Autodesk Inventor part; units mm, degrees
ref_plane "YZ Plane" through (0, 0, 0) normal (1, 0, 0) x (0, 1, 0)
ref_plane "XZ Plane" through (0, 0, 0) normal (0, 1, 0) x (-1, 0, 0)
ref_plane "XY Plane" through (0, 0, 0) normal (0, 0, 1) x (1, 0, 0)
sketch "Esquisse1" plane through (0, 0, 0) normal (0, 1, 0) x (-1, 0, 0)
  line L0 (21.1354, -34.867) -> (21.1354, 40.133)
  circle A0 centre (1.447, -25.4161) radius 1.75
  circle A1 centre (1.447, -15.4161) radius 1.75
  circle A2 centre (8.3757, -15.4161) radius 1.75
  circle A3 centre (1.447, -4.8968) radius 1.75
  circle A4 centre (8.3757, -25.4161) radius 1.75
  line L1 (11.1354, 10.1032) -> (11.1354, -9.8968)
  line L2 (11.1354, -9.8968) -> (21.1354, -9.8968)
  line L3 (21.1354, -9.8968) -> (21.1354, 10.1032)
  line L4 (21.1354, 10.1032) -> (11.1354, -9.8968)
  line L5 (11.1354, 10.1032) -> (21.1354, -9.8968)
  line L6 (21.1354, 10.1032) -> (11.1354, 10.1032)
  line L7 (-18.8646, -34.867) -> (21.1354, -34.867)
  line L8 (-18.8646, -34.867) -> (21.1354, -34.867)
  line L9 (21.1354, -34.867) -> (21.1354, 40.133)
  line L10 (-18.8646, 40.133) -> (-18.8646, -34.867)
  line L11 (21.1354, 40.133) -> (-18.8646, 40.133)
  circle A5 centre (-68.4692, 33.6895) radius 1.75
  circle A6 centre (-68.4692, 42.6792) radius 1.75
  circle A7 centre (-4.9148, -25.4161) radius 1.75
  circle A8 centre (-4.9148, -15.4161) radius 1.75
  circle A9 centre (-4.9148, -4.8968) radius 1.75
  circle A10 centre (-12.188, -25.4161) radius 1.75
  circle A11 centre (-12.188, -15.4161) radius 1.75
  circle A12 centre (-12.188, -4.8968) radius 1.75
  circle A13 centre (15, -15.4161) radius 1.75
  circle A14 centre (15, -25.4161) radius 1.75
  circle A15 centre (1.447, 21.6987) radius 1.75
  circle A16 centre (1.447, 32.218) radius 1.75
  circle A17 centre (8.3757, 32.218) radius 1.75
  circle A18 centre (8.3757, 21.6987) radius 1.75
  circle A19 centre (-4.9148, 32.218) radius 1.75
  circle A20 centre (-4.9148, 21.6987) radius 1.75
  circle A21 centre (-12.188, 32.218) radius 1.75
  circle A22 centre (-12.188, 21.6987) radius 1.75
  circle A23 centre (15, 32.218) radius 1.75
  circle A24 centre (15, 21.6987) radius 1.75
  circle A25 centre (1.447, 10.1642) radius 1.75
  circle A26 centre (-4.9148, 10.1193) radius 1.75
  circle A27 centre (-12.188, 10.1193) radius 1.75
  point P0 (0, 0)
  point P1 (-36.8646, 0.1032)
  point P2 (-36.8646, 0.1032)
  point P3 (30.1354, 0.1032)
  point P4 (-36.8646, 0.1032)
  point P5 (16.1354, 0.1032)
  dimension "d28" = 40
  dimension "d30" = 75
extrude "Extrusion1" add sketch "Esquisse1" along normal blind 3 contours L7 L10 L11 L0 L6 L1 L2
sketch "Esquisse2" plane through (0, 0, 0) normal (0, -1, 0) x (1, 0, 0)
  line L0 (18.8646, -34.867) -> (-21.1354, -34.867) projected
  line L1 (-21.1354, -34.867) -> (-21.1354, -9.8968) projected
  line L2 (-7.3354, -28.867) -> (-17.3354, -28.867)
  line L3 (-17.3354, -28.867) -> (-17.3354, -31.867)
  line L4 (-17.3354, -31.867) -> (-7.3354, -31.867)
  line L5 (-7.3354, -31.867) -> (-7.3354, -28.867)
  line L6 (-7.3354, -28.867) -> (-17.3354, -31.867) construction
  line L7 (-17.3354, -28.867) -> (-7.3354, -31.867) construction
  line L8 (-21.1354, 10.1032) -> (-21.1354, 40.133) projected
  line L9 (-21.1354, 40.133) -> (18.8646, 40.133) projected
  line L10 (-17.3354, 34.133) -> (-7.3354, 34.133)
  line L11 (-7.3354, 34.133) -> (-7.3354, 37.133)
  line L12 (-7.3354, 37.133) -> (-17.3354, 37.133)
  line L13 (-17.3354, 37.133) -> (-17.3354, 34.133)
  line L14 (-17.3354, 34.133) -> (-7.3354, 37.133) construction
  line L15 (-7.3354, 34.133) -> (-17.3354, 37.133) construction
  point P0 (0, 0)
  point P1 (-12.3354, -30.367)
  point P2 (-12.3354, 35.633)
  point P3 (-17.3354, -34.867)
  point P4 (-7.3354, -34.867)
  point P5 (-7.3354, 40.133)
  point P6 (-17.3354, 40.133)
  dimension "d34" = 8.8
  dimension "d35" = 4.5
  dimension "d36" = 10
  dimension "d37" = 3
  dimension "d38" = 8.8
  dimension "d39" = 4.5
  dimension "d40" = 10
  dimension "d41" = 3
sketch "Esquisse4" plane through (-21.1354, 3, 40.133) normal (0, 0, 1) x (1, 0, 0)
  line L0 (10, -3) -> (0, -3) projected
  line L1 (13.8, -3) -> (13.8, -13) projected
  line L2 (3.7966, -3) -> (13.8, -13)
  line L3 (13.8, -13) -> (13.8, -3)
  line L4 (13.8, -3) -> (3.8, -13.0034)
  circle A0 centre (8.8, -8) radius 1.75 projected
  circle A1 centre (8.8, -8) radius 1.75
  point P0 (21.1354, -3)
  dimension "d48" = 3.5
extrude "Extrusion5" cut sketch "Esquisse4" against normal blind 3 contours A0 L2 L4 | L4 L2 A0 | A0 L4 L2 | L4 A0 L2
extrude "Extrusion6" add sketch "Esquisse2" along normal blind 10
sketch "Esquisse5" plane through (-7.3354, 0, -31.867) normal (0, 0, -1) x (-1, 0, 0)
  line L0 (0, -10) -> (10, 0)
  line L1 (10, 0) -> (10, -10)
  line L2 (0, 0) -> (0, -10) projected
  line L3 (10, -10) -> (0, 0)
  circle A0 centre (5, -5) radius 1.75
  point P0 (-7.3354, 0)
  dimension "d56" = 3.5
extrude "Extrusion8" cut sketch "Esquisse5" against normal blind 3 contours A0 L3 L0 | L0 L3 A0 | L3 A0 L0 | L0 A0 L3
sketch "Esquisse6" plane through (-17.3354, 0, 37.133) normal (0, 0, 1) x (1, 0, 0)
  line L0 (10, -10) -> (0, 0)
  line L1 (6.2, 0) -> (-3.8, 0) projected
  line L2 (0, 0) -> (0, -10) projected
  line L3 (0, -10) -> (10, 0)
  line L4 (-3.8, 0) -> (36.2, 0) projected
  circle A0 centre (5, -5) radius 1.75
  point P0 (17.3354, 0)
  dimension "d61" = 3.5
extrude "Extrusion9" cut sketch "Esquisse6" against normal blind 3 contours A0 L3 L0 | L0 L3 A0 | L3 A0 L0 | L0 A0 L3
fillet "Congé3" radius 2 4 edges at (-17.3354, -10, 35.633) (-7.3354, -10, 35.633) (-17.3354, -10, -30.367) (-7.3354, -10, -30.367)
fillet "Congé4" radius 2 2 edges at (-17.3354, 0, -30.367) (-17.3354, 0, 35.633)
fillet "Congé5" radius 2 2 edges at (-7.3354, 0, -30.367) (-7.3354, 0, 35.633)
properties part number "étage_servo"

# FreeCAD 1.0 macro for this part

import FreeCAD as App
import Part
import Sketcher
from FreeCAD import Vector


def edges_at(feature, points):
    """Names of the edges that pass closest to the given points."""
    edges = feature.Shape.Edges
    near = lambda p: min(range(len(edges)), key=lambda i: edges[i].distToShape(Part.Vertex(*p))[0])
    return sorted({f"Edge{near(p) + 1}" for p in points})


def add_polygon(sketch, points):
    """Adds a closed chain of lines whose ends are joined by coincident constraints."""
    first, n = sketch.GeometryCount, len(points)
    for a, b in zip(points, points[1:] + points[:1]):
        sketch.addGeometry(Part.LineSegment(App.Vector(*a, 0), App.Vector(*b, 0)), False)
    for i in range(n):
        sketch.addConstraint(Sketcher.Constraint("Coincident", first + i, 2, first + (i + 1) % n, 1))

doc = App.newDocument("Part")
body = doc.addObject("PartDesign::Body", "Body")

# Sketch on XZ plane
sketch1 = body.newObject("Sketcher::SketchObject", "Sketch")
sketch1.AttachmentSupport = (doc.getObject("XZ_Plane"), [""])
sketch1.MapMode = "FlatFace"
add_polygon(sketch1, [(18.9, -34.9), (-21.1, -34.9), (-21.1, -9.9), (-11.1, -9.9), (-11.1, 10.1), (-21.1, 10.1), (-21.1, 40.1), (18.9, 40.1)])  # lines 0-7
sketch1.addGeometry(Part.Circle(Vector(12.2, -25.4, 0), Vector(0, 0, 1), 1.8), False)  # 8
sketch1.addGeometry(Part.Circle(Vector(4.9, -25.4, 0), Vector(0, 0, 1), 1.8), False)  # 9
sketch1.addGeometry(Part.Circle(Vector(12.2, -15.4, 0), Vector(0, 0, 1), 1.8), False)  # 10
sketch1.addGeometry(Part.Circle(Vector(4.9, -15.4, 0), Vector(0, 0, 1), 1.8), False)  # 11
sketch1.addGeometry(Part.Circle(Vector(-1.4, -25.4, 0), Vector(0, 0, 1), 1.8), False)  # 12
sketch1.addGeometry(Part.Circle(Vector(-8.4, -25.4, 0), Vector(0, 0, 1), 1.8), False)  # 13
sketch1.addGeometry(Part.Circle(Vector(-15, -25.4, 0), Vector(0, 0, 1), 1.8), False)  # 14
sketch1.addGeometry(Part.Circle(Vector(-1.4, -15.4, 0), Vector(0, 0, 1), 1.8), False)  # 15
sketch1.addGeometry(Part.Circle(Vector(-8.4, -15.4, 0), Vector(0, 0, 1), 1.8), False)  # 16
sketch1.addGeometry(Part.Circle(Vector(-15, -15.4, 0), Vector(0, 0, 1), 1.8), False)  # 17
sketch1.addGeometry(Part.Circle(Vector(12.2, -4.9, 0), Vector(0, 0, 1), 1.8), False)  # 18
sketch1.addGeometry(Part.Circle(Vector(4.9, -4.9, 0), Vector(0, 0, 1), 1.8), False)  # 19
sketch1.addGeometry(Part.Circle(Vector(-1.4, -4.9, 0), Vector(0, 0, 1), 1.8), False)  # 20
sketch1.addGeometry(Part.Circle(Vector(12.2, 10.1, 0), Vector(0, 0, 1), 1.8), False)  # 21
sketch1.addGeometry(Part.Circle(Vector(4.9, 10.1, 0), Vector(0, 0, 1), 1.8), False)  # 22
sketch1.addGeometry(Part.Circle(Vector(12.2, 21.7, 0), Vector(0, 0, 1), 1.8), False)  # 23
sketch1.addGeometry(Part.Circle(Vector(4.9, 21.7, 0), Vector(0, 0, 1), 1.8), False)  # 24
sketch1.addGeometry(Part.Circle(Vector(-1.4, 10.2, 0), Vector(0, 0, 1), 1.8), False)  # 25
sketch1.addGeometry(Part.Circle(Vector(-1.4, 21.7, 0), Vector(0, 0, 1), 1.8), False)  # 26
sketch1.addGeometry(Part.Circle(Vector(-8.4, 21.7, 0), Vector(0, 0, 1), 1.8), False)  # 27
sketch1.addGeometry(Part.Circle(Vector(-15, 21.7, 0), Vector(0, 0, 1), 1.8), False)  # 28
sketch1.addGeometry(Part.Circle(Vector(12.2, 32.2, 0), Vector(0, 0, 1), 1.8), False)  # 29
sketch1.addGeometry(Part.Circle(Vector(4.9, 32.2, 0), Vector(0, 0, 1), 1.8), False)  # 30
sketch1.addGeometry(Part.Circle(Vector(-1.4, 32.2, 0), Vector(0, 0, 1), 1.8), False)  # 31
sketch1.addGeometry(Part.Circle(Vector(-8.4, 32.2, 0), Vector(0, 0, 1), 1.8), False)  # 32
sketch1.addGeometry(Part.Circle(Vector(-15, 32.2, 0), Vector(0, 0, 1), 1.8), False)  # 33
sketch1.addConstraint([
    Sketcher.Constraint("Horizontal", 0),
    Sketcher.Constraint("Vertical", 1),
    Sketcher.Constraint("Horizontal", 2),
    Sketcher.Constraint("Vertical", 3),
    Sketcher.Constraint("Horizontal", 4),
    Sketcher.Constraint("Vertical", 5),
    Sketcher.Constraint("Horizontal", 6),
    Sketcher.Constraint("Vertical", 7),
    Sketcher.Constraint("Equal", 8, 9),
    Sketcher.Constraint("Equal", 9, 10),
    Sketcher.Constraint("Equal", 10, 11),
    Sketcher.Constraint("Equal", 11, 12),
    Sketcher.Constraint("Equal", 12, 13),
    Sketcher.Constraint("Equal", 13, 14),
    Sketcher.Constraint("Equal", 14, 15),
    Sketcher.Constraint("Equal", 15, 16),
    Sketcher.Constraint("Equal", 16, 17),
    Sketcher.Constraint("Equal", 17, 18),
    Sketcher.Constraint("Equal", 18, 19),
    Sketcher.Constraint("Equal", 19, 20),
    Sketcher.Constraint("Equal", 20, 21),
    Sketcher.Constraint("Equal", 21, 22),
    Sketcher.Constraint("Equal", 22, 23),
    Sketcher.Constraint("Equal", 23, 24),
    Sketcher.Constraint("Equal", 24, 25),
    Sketcher.Constraint("Equal", 25, 26),
    Sketcher.Constraint("Equal", 26, 27),
    Sketcher.Constraint("Equal", 27, 28),
    Sketcher.Constraint("Equal", 28, 29),
    Sketcher.Constraint("Equal", 29, 30),
    Sketcher.Constraint("Equal", 30, 31),
    Sketcher.Constraint("Equal", 31, 32),
    Sketcher.Constraint("Equal", 32, 33),
    Sketcher.Constraint("Horizontal", 8, 3, 9, 3),
    Sketcher.Constraint("Horizontal", 10, 3, 11, 3),
    Sketcher.Constraint("Horizontal", 9, 3, 12, 3),
    Sketcher.Constraint("Horizontal", 12, 3, 13, 3),
    Sketcher.Constraint("Horizontal", 13, 3, 14, 3),
    Sketcher.Constraint("Horizontal", 11, 3, 15, 3),
    Sketcher.Constraint("Horizontal", 15, 3, 16, 3),
    Sketcher.Constraint("Horizontal", 16, 3, 17, 3),
    Sketcher.Constraint("Horizontal", 18, 3, 19, 3),
    Sketcher.Constraint("Horizontal", 19, 3, 20, 3),
    Sketcher.Constraint("Horizontal", 21, 3, 22, 3),
    Sketcher.Constraint("Horizontal", 23, 3, 24, 3),
    Sketcher.Constraint("Horizontal", 24, 3, 26, 3),
    Sketcher.Constraint("Horizontal", 26, 3, 27, 3),
    Sketcher.Constraint("Horizontal", 27, 3, 28, 3),
    Sketcher.Constraint("Horizontal", 29, 3, 30, 3),
    Sketcher.Constraint("Horizontal", 30, 3, 31, 3),
    Sketcher.Constraint("Horizontal", 31, 3, 32, 3),
    Sketcher.Constraint("Horizontal", 32, 3, 33, 3),
    Sketcher.Constraint("Vertical", 8, 3, 10, 3),
    Sketcher.Constraint("Vertical", 9, 3, 11, 3),
    Sketcher.Constraint("Vertical", 12, 3, 15, 3),
    Sketcher.Constraint("Vertical", 13, 3, 16, 3),
    Sketcher.Constraint("Vertical", 14, 3, 17, 3),
    Sketcher.Constraint("Vertical", 10, 3, 18, 3),
    Sketcher.Constraint("Vertical", 11, 3, 19, 3),
    Sketcher.Constraint("Vertical", 15, 3, 20, 3),
    Sketcher.Constraint("Vertical", 18, 3, 21, 3),
    Sketcher.Constraint("Vertical", 19, 3, 22, 3),
    Sketcher.Constraint("Vertical", 21, 3, 23, 3),
    Sketcher.Constraint("Vertical", 22, 3, 24, 3),
    Sketcher.Constraint("Vertical", 20, 3, 25, 3),
    Sketcher.Constraint("Vertical", 25, 3, 26, 3),
    Sketcher.Constraint("Vertical", 16, 3, 27, 3),
    Sketcher.Constraint("Vertical", 17, 3, 28, 3),
    Sketcher.Constraint("Vertical", 23, 3, 29, 3),
    Sketcher.Constraint("Vertical", 24, 3, 30, 3),
    Sketcher.Constraint("Vertical", 26, 3, 31, 3),
    Sketcher.Constraint("Vertical", 27, 3, 32, 3),
    Sketcher.Constraint("Vertical", 28, 3, 33, 3),
    Sketcher.Constraint("Vertical", 1, 2, 4, 2),
    Sketcher.Constraint("DistanceX", 0, 2, 0, 1, 40.0),
    Sketcher.Constraint("DistanceY", 7, 2, 7, 1, 75.0),
    Sketcher.Constraint("Diameter", 8, 3.5),
    Sketcher.Constraint("DistanceX", 2, 1, 2, 2, 10.0),
    Sketcher.Constraint("DistanceY", 3, 1, 3, 2, 20.0),
    Sketcher.Constraint("DistanceX", 14, 3, -1, 1, 15.0),
    Sketcher.Constraint("DistanceY", 8, 3, 10, 3, 10.0),
    Sketcher.Constraint("DistanceY", 1, 2, 20, 3, 5.0),
    Sketcher.Constraint("DistanceY", 1, 1, 1, 2, 24.9702),
    Sketcher.Constraint("DistanceX", -1, 1, 8, 3, 12.188),
    Sketcher.Constraint("DistanceY", 8, 3, -1, 1, 25.416),
    Sketcher.Constraint("DistanceX", 12, 3, -1, 1, 1.447),
    Sketcher.Constraint("DistanceY", -1, 1, 29, 3, 32.218),
    Sketcher.Constraint("DistanceY", 0, 2, -1, 1, 34.867),
    Sketcher.Constraint("DistanceY", 18, 3, 21, 3, 15.016),
    Sketcher.Constraint("DistanceY", 22, 3, 25, 3, 0.045),
    Sketcher.Constraint("DistanceX", -1, 1, 9, 3, 4.9148),
    Sketcher.Constraint("DistanceX", 13, 3, -1, 1, 8.3757),
    Sketcher.Constraint("DistanceY", -1, 1, 23, 3, 21.6987),
    Sketcher.Constraint("DistanceX", 0, 2, -1, 1, 21.1354),
])
pad1 = body.newObject("PartDesign::Pad", "Pad")
pad1.Profile = sketch1
pad1.Length = 3
pad1.Reversed = True

# Sketch on XY plane
sketch2 = body.newObject("Sketcher::SketchObject", "Sketch001")
sketch2.AttachmentSupport = (doc.getObject("XY_Plane"), [""])
sketch2.MapMode = "FlatFace"
sketch2.AttachmentOffset = App.Placement(Vector(0, 0, 40.133), App.Rotation())
sketch2.addGeometry(Part.Circle(Vector(-12.3, -5, 0), Vector(0, 0, 1), 1.8), False)
sketch2.addConstraint([
    Sketcher.Constraint("Diameter", 0, 3.5),
    Sketcher.Constraint("DistanceY", 0, 3, -1, 1, 5.0),
    Sketcher.Constraint("DistanceX", 0, 3, -1, 1, 12.3354),
])
pocket1 = body.newObject("PartDesign::Pocket", "Pocket")
pocket1.Profile = sketch2
pocket1.Length = 3

# Sketch on XZ plane
sketch3 = body.newObject("Sketcher::SketchObject", "Sketch002")
sketch3.AttachmentSupport = (doc.getObject("XZ_Plane"), [""])
sketch3.MapMode = "FlatFace"
add_polygon(sketch3, [(-7.3, -31.9), (-7.3, -28.9), (-17.3, -28.9), (-17.3, -31.9)])  # lines 0-3
add_polygon(sketch3, [(-17.3, 37.1), (-17.3, 34.1), (-7.3, 34.1), (-7.3, 37.1)])  # lines 4-7
sketch3.addConstraint([
    Sketcher.Constraint("Vertical", 0),
    Sketcher.Constraint("Horizontal", 1),
    Sketcher.Constraint("Vertical", 2),
    Sketcher.Constraint("Horizontal", 3),
    Sketcher.Constraint("Vertical", 4),
    Sketcher.Constraint("Horizontal", 5),
    Sketcher.Constraint("Vertical", 6),
    Sketcher.Constraint("Horizontal", 7),
    Sketcher.Constraint("Vertical", 2, 2, 4, 2),
    Sketcher.Constraint("Vertical", 3, 2, 5, 2),
    Sketcher.Constraint("Equal", 2, 4),
    Sketcher.Constraint("DistanceX", 1, 2, 1, 1, 10.0),
    Sketcher.Constraint("DistanceY", 0, 1, 0, 2, 3.0),
    Sketcher.Constraint("DistanceY", 1, 2, 4, 2, 63.0),
    Sketcher.Constraint("DistanceY", 0, 2, -1, 1, 28.867),
    Sketcher.Constraint("DistanceX", 0, 2, -1, 1, 7.3354),
])
pad2 = body.newObject("PartDesign::Pad", "Pad001")
pad2.Profile = sketch3
pad2.Length = 10

# Sketch on XY plane
sketch4 = body.newObject("Sketcher::SketchObject", "Sketch003")
sketch4.AttachmentSupport = (doc.getObject("XY_Plane"), [""])
sketch4.MapMode = "FlatFace"
sketch4.AttachmentOffset = App.Placement(Vector(0, 0, -31.867), App.Rotation())
sketch4.addGeometry(Part.Circle(Vector(-12.3, -5, 0), Vector(0, 0, 1), 1.8), False)
sketch4.addConstraint([
    Sketcher.Constraint("Diameter", 0, 3.5),
    Sketcher.Constraint("DistanceY", 0, 3, -1, 1, 5.0),
    Sketcher.Constraint("DistanceX", 0, 3, -1, 1, 12.3354),
])
pocket2 = body.newObject("PartDesign::Pocket", "Pocket001")
pocket2.Profile = sketch4
pocket2.Length = 3
pocket2.Reversed = True

# Sketch on XY plane
sketch5 = body.newObject("Sketcher::SketchObject", "Sketch004")
sketch5.AttachmentSupport = (doc.getObject("XY_Plane"), [""])
sketch5.MapMode = "FlatFace"
sketch5.AttachmentOffset = App.Placement(Vector(0, 0, 37.133), App.Rotation())
sketch5.addGeometry(Part.Circle(Vector(-12.3, -5, 0), Vector(0, 0, 1), 1.8), False)
sketch5.addConstraint([
    Sketcher.Constraint("Diameter", 0, 3.5),
    Sketcher.Constraint("DistanceY", 0, 3, -1, 1, 5.0),
    Sketcher.Constraint("DistanceX", 0, 3, -1, 1, 12.3354),
])
pocket3 = body.newObject("PartDesign::Pocket", "Pocket002")
pocket3.Profile = sketch5
pocket3.Length = 3
doc.recompute()

fillet = body.newObject("PartDesign::Fillet", "Fillet")
fillet.Base = (pocket3, edges_at(pocket3, [
    (-17.335, -10, 35.633),
    (-7.335, -10, 35.633),
    (-17.335, -10, -30.367),
    (-7.335, -10, -30.367),
]))
fillet.Radius = 2
doc.recompute()

fillet2 = body.newObject("PartDesign::Fillet", "Fillet001")
fillet2.Base = (fillet, edges_at(fillet, [(-17.335, 0, -30.367), (-17.335, 0, 35.633)]))
fillet2.Radius = 2
doc.recompute()

fillet3 = body.newObject("PartDesign::Fillet", "Fillet002")
fillet3.Base = (fillet2, edges_at(fillet2, [(-7.335, 0, -30.367), (-7.335, 0, 35.633)]))
fillet3.Radius = 2

doc.recompute()
